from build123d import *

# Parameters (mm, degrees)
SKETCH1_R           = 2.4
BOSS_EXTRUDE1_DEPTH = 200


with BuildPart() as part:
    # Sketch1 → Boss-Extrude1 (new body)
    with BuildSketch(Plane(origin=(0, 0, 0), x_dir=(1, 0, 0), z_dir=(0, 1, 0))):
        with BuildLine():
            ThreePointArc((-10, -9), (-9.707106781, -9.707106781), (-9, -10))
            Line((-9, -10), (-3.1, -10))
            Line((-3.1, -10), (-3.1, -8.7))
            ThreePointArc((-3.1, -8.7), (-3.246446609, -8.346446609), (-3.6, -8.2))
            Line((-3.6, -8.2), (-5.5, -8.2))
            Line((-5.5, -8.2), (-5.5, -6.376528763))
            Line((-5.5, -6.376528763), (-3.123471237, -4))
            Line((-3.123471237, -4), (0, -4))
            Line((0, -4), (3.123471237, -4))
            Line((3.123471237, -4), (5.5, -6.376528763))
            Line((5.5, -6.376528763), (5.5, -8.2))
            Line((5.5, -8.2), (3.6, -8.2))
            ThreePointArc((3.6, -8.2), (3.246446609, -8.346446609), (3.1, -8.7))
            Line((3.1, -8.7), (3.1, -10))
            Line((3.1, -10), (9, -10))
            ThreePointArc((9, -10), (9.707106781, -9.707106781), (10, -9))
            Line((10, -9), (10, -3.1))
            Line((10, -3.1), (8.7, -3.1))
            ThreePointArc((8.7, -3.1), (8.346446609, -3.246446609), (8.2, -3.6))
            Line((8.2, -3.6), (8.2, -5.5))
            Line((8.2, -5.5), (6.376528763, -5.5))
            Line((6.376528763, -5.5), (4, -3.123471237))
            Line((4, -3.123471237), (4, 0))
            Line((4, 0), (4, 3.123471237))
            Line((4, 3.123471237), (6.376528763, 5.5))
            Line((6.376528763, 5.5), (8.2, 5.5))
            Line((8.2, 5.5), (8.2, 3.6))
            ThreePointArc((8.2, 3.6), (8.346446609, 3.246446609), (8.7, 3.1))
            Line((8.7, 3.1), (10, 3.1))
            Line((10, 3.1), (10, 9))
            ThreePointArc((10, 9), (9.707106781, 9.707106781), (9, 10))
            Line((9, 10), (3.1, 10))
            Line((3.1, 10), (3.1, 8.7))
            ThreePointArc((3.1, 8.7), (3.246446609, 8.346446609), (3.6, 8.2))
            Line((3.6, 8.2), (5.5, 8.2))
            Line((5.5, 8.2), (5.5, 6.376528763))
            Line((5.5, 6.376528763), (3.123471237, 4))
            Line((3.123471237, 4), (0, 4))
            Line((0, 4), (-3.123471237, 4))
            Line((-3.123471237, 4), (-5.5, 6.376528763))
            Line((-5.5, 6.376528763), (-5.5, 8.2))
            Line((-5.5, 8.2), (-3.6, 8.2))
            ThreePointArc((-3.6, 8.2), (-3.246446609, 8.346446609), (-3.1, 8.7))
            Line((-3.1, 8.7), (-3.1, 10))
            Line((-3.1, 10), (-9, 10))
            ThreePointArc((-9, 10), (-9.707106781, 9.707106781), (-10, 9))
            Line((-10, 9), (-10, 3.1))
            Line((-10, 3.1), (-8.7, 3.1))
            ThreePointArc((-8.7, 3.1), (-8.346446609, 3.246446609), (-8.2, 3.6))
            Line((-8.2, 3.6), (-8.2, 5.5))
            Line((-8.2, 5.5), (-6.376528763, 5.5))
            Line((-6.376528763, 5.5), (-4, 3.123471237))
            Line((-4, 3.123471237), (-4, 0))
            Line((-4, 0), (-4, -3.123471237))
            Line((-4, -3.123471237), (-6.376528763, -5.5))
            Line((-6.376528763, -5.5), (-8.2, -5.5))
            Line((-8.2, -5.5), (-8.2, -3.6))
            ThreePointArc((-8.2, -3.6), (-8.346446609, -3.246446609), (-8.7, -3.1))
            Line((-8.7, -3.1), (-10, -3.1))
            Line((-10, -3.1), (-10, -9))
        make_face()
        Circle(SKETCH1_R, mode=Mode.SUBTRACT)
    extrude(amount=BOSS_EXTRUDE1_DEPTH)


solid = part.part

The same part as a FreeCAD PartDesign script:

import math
import FreeCAD as App
import Part
import Sketcher
from FreeCAD import Vector

doc = App.newDocument("Part")
body = doc.addObject("PartDesign::Body", "Body")

sketch1 = doc.addObject("Sketcher::SketchObject", "Sketch")
body.addObject(sketch1)
sketch1.AttachmentSupport = (doc.XZ_Plane, [""])
sketch1.MapMode = "FlatFace"
sketch1.addGeometry(Part.ArcOfCircle(Part.Circle(Vector(-9, 9, 0), Vector(0, 0, 1), 1), math.radians(90), math.radians(180)), False)
sketch1.addGeometry(Part.LineSegment(Vector(-9, 10, 0), Vector(-3.1, 10, 0)), False)
sketch1.addGeometry(Part.LineSegment(Vector(-3.1, 10, 0), Vector(-3.1, 8.7, 0)), False)
sketch1.addGeometry(Part.ArcOfCircle(Part.Circle(Vector(-3.6, 8.7, 0), Vector(0, 0, 1), 0.5), math.radians(-90), math.radians(0)), False)
sketch1.addGeometry(Part.LineSegment(Vector(-3.6, 8.2, 0), Vector(-5.5, 8.2, 0)), False)
sketch1.addGeometry(Part.LineSegment(Vector(-5.5, 8.2, 0), Vector(-5.5, 6.38, 0)), False)
sketch1.addGeometry(Part.LineSegment(Vector(-5.5, 6.38, 0), Vector(-3.12, 4, 0)), False)
sketch1.addGeometry(Part.LineSegment(Vector(-3.12, 4, 0), Vector(3.12, 4, 0)), False)
sketch1.addGeometry(Part.LineSegment(Vector(3.12, 4, 0), Vector(5.5, 6.38, 0)), False)
sketch1.addGeometry(Part.LineSegment(Vector(5.5, 6.38, 0), Vector(5.5, 8.2, 0)), False)
sketch1.addGeometry(Part.LineSegment(Vector(5.5, 8.2, 0), Vector(3.6, 8.2, 0)), False)
sketch1.addGeometry(Part.ArcOfCircle(Part.Circle(Vector(3.6, 8.7, 0), Vector(0, 0, 1), 0.5), math.radians(180), math.radians(270)), False)
sketch1.addGeometry(Part.LineSegment(Vector(3.1, 8.7, 0), Vector(3.1, 10, 0)), False)
sketch1.addGeometry(Part.LineSegment(Vector(3.1, 10, 0), Vector(9, 10, 0)), False)
sketch1.addGeometry(Part.ArcOfCircle(Part.Circle(Vector(9, 9, 0), Vector(0, 0, 1), 1), math.radians(0), math.radians(90)), False)
sketch1.addGeometry(Part.LineSegment(Vector(10, 9, 0), Vector(10, 3.1, 0)), False)
sketch1.addGeometry(Part.LineSegment(Vector(10, 3.1, 0), Vector(8.7, 3.1, 0)), False)
sketch1.addGeometry(Part.ArcOfCircle(Part.Circle(Vector(8.7, 3.6, 0), Vector(0, 0, 1), 0.5), math.radians(180), math.radians(270)), False)
sketch1.addGeometry(Part.LineSegment(Vector(8.2, 3.6, 0), Vector(8.2, 5.5, 0)), False)
sketch1.addGeometry(Part.LineSegment(Vector(8.2, 5.5, 0), Vector(6.38, 5.5, 0)), False)
sketch1.addGeometry(Part.LineSegment(Vector(6.38, 5.5, 0), Vector(4, 3.12, 0)), False)
sketch1.addGeometry(Part.LineSegment(Vector(4, 3.12, 0), Vector(4, -3.12, 0)), False)
sketch1.addGeometry(Part.LineSegment(Vector(4, -3.12, 0), Vector(6.38, -5.5, 0)), False)
sketch1.addGeometry(Part.LineSegment(Vector(6.38, -5.5, 0), Vector(8.2, -5.5, 0)), False)
sketch1.addGeometry(Part.LineSegment(Vector(8.2, -5.5, 0), Vector(8.2, -3.6, 0)), False)
sketch1.addGeometry(Part.ArcOfCircle(Part.Circle(Vector(8.7, -3.6, 0), Vector(0, 0, 1), 0.5), math.radians(90), math.radians(180)), False)
sketch1.addGeometry(Part.LineSegment(Vector(8.7, -3.1, 0), Vector(10, -3.1, 0)), False)
sketch1.addGeometry(Part.LineSegment(Vector(10, -3.1, 0), Vector(10, -9, 0)), False)
sketch1.addGeometry(Part.ArcOfCircle(Part.Circle(Vector(9, -9, 0), Vector(0, 0, 1), 1), math.radians(-90), math.radians(0)), False)
sketch1.addGeometry(Part.LineSegment(Vector(9, -10, 0), Vector(3.1, -10, 0)), False)
sketch1.addGeometry(Part.LineSegment(Vector(3.1, -10, 0), Vector(3.1, -8.7, 0)), False)
sketch1.addGeometry(Part.ArcOfCircle(Part.Circle(Vector(3.6, -8.7, 0), Vector(0, 0, 1), 0.5), math.radians(90), math.radians(180)), False)
sketch1.addGeometry(Part.LineSegment(Vector(3.6, -8.2, 0), Vector(5.5, -8.2, 0)), False)
sketch1.addGeometry(Part.LineSegment(Vector(5.5, -8.2, 0), Vector(5.5, -6.38, 0)), False)
sketch1.addGeometry(Part.LineSegment(Vector(5.5, -6.38, 0), Vector(3.12, -4, 0)), False)
sketch1.addGeometry(Part.LineSegment(Vector(3.12, -4, 0), Vector(-3.12, -4, 0)), False)
sketch1.addGeometry(Part.LineSegment(Vector(-3.12, -4, 0), Vector(-5.5, -6.38, 0)), False)
sketch1.addGeometry(Part.LineSegment(Vector(-5.5, -6.38, 0), Vector(-5.5, -8.2, 0)), False)
sketch1.addGeometry(Part.LineSegment(Vector(-5.5, -8.2, 0), Vector(-3.6, -8.2, 0)), False)
sketch1.addGeometry(Part.ArcOfCircle(Part.Circle(Vector(-3.6, -8.7, 0), Vector(0, 0, 1), 0.5), math.radians(0), math.radians(90)), False)
sketch1.addGeometry(Part.LineSegment(Vector(-3.1, -8.7, 0), Vector(-3.1, -10, 0)), False)
sketch1.addGeometry(Part.LineSegment(Vector(-3.1, -10, 0), Vector(-9, -10, 0)), False)
sketch1.addGeometry(Part.ArcOfCircle(Part.Circle(Vector(-9, -9, 0), Vector(0, 0, 1), 1), math.radians(-180), math.radians(-90)), False)
sketch1.addGeometry(Part.LineSegment(Vector(-10, -9, 0), Vector(-10, -3.1, 0)), False)
sketch1.addGeometry(Part.LineSegment(Vector(-10, -3.1, 0), Vector(-8.7, -3.1, 0)), False)
sketch1.addGeometry(Part.ArcOfCircle(Part.Circle(Vector(-8.7, -3.6, 0), Vector(0, 0, 1), 0.5), math.radians(0), math.radians(90)), False)
sketch1.addGeometry(Part.LineSegment(Vector(-8.2, -3.6, 0), Vector(-8.2, -5.5, 0)), False)
sketch1.addGeometry(Part.LineSegment(Vector(-8.2, -5.5, 0), Vector(-6.38, -5.5, 0)), False)
sketch1.addGeometry(Part.LineSegment(Vector(-6.38, -5.5, 0), Vector(-4, -3.12, 0)), False)
sketch1.addGeometry(Part.LineSegment(Vector(-4, -3.12, 0), Vector(-4, 3.12, 0)), False)
sketch1.addGeometry(Part.LineSegment(Vector(-4, 3.12, 0), Vector(-6.38, 5.5, 0)), False)
sketch1.addGeometry(Part.LineSegment(Vector(-6.38, 5.5, 0), Vector(-8.2, 5.5, 0)), False)
sketch1.addGeometry(Part.LineSegment(Vector(-8.2, 5.5, 0), Vector(-8.2, 3.6, 0)), False)
sketch1.addGeometry(Part.ArcOfCircle(Part.Circle(Vector(-8.7, 3.6, 0), Vector(0, 0, 1), 0.5), math.radians(-90), math.radians(0)), False)
sketch1.addGeometry(Part.LineSegment(Vector(-8.7, 3.1, 0), Vector(-10, 3.1, 0)), False)
sketch1.addGeometry(Part.LineSegment(Vector(-10, 3.1, 0), Vector(-10, 9, 0)), False)
sketch1.addGeometry(Part.Circle(Vector(0, 0, 0), Vector(0, 0, 1), 2.4), False)
sketch1.addConstraint(Sketcher.Constraint("Tangent", 0, 1, 1, 1))
sketch1.addConstraint(Sketcher.Constraint("Coincident", 1, 2, 2, 1))
sketch1.addConstraint(Sketcher.Constraint("Tangent", 2, 2, 3, 2))
sketch1.addConstraint(Sketcher.Constraint("Tangent", 3, 1, 4, 1))
sketch1.addConstraint(Sketcher.Constraint("Coincident", 4, 2, 5, 1))
sketch1.addConstraint(Sketcher.Constraint("Coincident", 5, 2, 6, 1))
sketch1.addConstraint(Sketcher.Constraint("Coincident", 6, 2, 7, 1))
sketch1.addConstraint(Sketcher.Constraint("Coincident", 7, 2, 8, 1))
sketch1.addConstraint(Sketcher.Constraint("Coincident", 8, 2, 9, 1))
sketch1.addConstraint(Sketcher.Constraint("Coincident", 9, 2, 10, 1))
sketch1.addConstraint(Sketcher.Constraint("Tangent", 10, 2, 11, 2))
sketch1.addConstraint(Sketcher.Constraint("Tangent", 11, 1, 12, 1))
sketch1.addConstraint(Sketcher.Constraint("Coincident", 12, 2, 13, 1))
sketch1.addConstraint(Sketcher.Constraint("Tangent", 13, 2, 14, 2))
sketch1.addConstraint(Sketcher.Constraint("Tangent", 14, 1, 15, 1))
sketch1.addConstraint(Sketcher.Constraint("Coincident", 15, 2, 16, 1))
sketch1.addConstraint(Sketcher.Constraint("Tangent", 16, 2, 17, 2))
sketch1.addConstraint(Sketcher.Constraint("Tangent", 17, 1, 18, 1))
sketch1.addConstraint(Sketcher.Constraint("Coincident", 18, 2, 19, 1))
sketch1.addConstraint(Sketcher.Constraint("Coincident", 19, 2, 20, 1))
sketch1.addConstraint(Sketcher.Constraint("Coincident", 20, 2, 21, 1))
sketch1.addConstraint(Sketcher.Constraint("Coincident", 21, 2, 22, 1))
sketch1.addConstraint(Sketcher.Constraint("Coincident", 22, 2, 23, 1))
sketch1.addConstraint(Sketcher.Constraint("Coincident", 23, 2, 24, 1))
sketch1.addConstraint(Sketcher.Constraint("Tangent", 24, 2, 25, 2))
sketch1.addConstraint(Sketcher.Constraint("Tangent", 25, 1, 26, 1))
sketch1.addConstraint(Sketcher.Constraint("Coincident", 26, 2, 27, 1))
sketch1.addConstraint(Sketcher.Constraint("Tangent", 27, 2, 28, 2))
sketch1.addConstraint(Sketcher.Constraint("Tangent", 28, 1, 29, 1))
sketch1.addConstraint(Sketcher.Constraint("Coincident", 29, 2, 30, 1))
sketch1.addConstraint(Sketcher.Constraint("Tangent", 30, 2, 31, 2))
sketch1.addConstraint(Sketcher.Constraint("Tangent", 31, 1, 32, 1))
sketch1.addConstraint(Sketcher.Constraint("Coincident", 32, 2, 33, 1))
sketch1.addConstraint(Sketcher.Constraint("Coincident", 33, 2, 34, 1))
sketch1.addConstraint(Sketcher.Constraint("Coincident", 34, 2, 35, 1))
sketch1.addConstraint(Sketcher.Constraint("Coincident", 35, 2, 36, 1))
sketch1.addConstraint(Sketcher.Constraint("Coincident", 36, 2, 37, 1))
sketch1.addConstraint(Sketcher.Constraint("Coincident", 37, 2, 38, 1))
sketch1.addConstraint(Sketcher.Constraint("Tangent", 38, 2, 39, 2))
sketch1.addConstraint(Sketcher.Constraint("Tangent", 39, 1, 40, 1))
sketch1.addConstraint(Sketcher.Constraint("Coincident", 40, 2, 41, 1))
sketch1.addConstraint(Sketcher.Constraint("Tangent", 41, 2, 42, 2))
sketch1.addConstraint(Sketcher.Constraint("Tangent", 42, 1, 43, 1))
sketch1.addConstraint(Sketcher.Constraint("Coincident", 43, 2, 44, 1))
sketch1.addConstraint(Sketcher.Constraint("Tangent", 44, 2, 45, 2))
sketch1.addConstraint(Sketcher.Constraint("Tangent", 45, 1, 46, 1))
sketch1.addConstraint(Sketcher.Constraint("Coincident", 46, 2, 47, 1))
sketch1.addConstraint(Sketcher.Constraint("Coincident", 47, 2, 48, 1))
sketch1.addConstraint(Sketcher.Constraint("Coincident", 48, 2, 49, 1))
sketch1.addConstraint(Sketcher.Constraint("Coincident", 49, 2, 50, 1))
sketch1.addConstraint(Sketcher.Constraint("Coincident", 50, 2, 51, 1))
sketch1.addConstraint(Sketcher.Constraint("Coincident", 51, 2, 52, 1))
sketch1.addConstraint(Sketcher.Constraint("Tangent", 52, 2, 53, 2))
sketch1.addConstraint(Sketcher.Constraint("Tangent", 53, 1, 54, 1))
sketch1.addConstraint(Sketcher.Constraint("Coincident", 54, 2, 55, 1))
sketch1.addConstraint(Sketcher.Constraint("Tangent", 55, 2, 0, 2))
sketch1.addConstraint(Sketcher.Constraint("Horizontal", 1))
sketch1.addConstraint(Sketcher.Constraint("Vertical", 2))
sketch1.addConstraint(Sketcher.Constraint("Horizontal", 4))
sketch1.addConstraint(Sketcher.Constraint("Vertical", 5))
sketch1.addConstraint(Sketcher.Constraint("Horizontal", 7))
sketch1.addConstraint(Sketcher.Constraint("Vertical", 9))
sketch1.addConstraint(Sketcher.Constraint("Horizontal", 10))
sketch1.addConstraint(Sketcher.Constraint("Vertical", 12))
sketch1.addConstraint(Sketcher.Constraint("Horizontal", 13))
sketch1.addConstraint(Sketcher.Constraint("Vertical", 15))
sketch1.addConstraint(Sketcher.Constraint("Horizontal", 16))
sketch1.addConstraint(Sketcher.Constraint("Vertical", 18))
sketch1.addConstraint(Sketcher.Constraint("Horizontal", 19))
sketch1.addConstraint(Sketcher.Constraint("Vertical", 21))
sketch1.addConstraint(Sketcher.Constraint("Horizontal", 23))
sketch1.addConstraint(Sketcher.Constraint("Vertical", 24))
sketch1.addConstraint(Sketcher.Constraint("Horizontal", 26))
sketch1.addConstraint(Sketcher.Constraint("Vertical", 27))
sketch1.addConstraint(Sketcher.Constraint("Horizontal", 29))
sketch1.addConstraint(Sketcher.Constraint("Vertical", 30))
sketch1.addConstraint(Sketcher.Constraint("Horizontal", 32))
sketch1.addConstraint(Sketcher.Constraint("Vertical", 33))
sketch1.addConstraint(Sketcher.Constraint("Horizontal", 35))
sketch1.addConstraint(Sketcher.Constraint("Vertical", 37))
sketch1.addConstraint(Sketcher.Constraint("Horizontal", 38))
sketch1.addConstraint(Sketcher.Constraint("Vertical", 40))
sketch1.addConstraint(Sketcher.Constraint("Horizontal", 41))
sketch1.addConstraint(Sketcher.Constraint("Vertical", 43))
sketch1.addConstraint(Sketcher.Constraint("Horizontal", 44))
sketch1.addConstraint(Sketcher.Constraint("Vertical", 46))
sketch1.addConstraint(Sketcher.Constraint("Horizontal", 47))
sketch1.addConstraint(Sketcher.Constraint("Vertical", 49))
sketch1.addConstraint(Sketcher.Constraint("Horizontal", 51))
sketch1.addConstraint(Sketcher.Constraint("Vertical", 52))
sketch1.addConstraint(Sketcher.Constraint("Horizontal", 54))
sketch1.addConstraint(Sketcher.Constraint("Vertical", 55))
sketch1.addConstraint(Sketcher.Constraint("Coincident", 56, 3, -1, 1))
sketch1.addConstraint(Sketcher.Constraint("Equal", 3, 11))
sketch1.addConstraint(Sketcher.Constraint("Equal", 0, 14))
sketch1.addConstraint(Sketcher.Constraint("Equal", 11, 17))
sketch1.addConstraint(Sketcher.Constraint("Equal", 17, 25))
sketch1.addConstraint(Sketcher.Constraint("Equal", 14, 28))
sketch1.addConstraint(Sketcher.Constraint("Equal", 25, 31))
sketch1.addConstraint(Sketcher.Constraint("Equal", 31, 39))
sketch1.addConstraint(Sketcher.Constraint("Equal", 28, 42))
sketch1.addConstraint(Sketcher.Constraint("Equal", 39, 45))
sketch1.addConstraint(Sketcher.Constraint("Equal", 45, 53))
sketch1.addConstraint(Sketcher.Constraint("Symmetric", 0, 3, 28, 3, -1, 1))
sketch1.addConstraint(Sketcher.Constraint("Symmetric", 3, 3, 31, 3, -1, 1))
sketch1.addConstraint(Sketcher.Constraint("Symmetric", 11, 3, 39, 3, -1, 1))
sketch1.addConstraint(Sketcher.Constraint("Symmetric", 14, 3, 42, 3, -1, 1))
sketch1.addConstraint(Sketcher.Constraint("Symmetric", 17, 3, 45, 3, -1, 1))
sketch1.addConstraint(Sketcher.Constraint("Symmetric", 25, 3, 53, 3, -1, 1))
sketch1.addConstraint(Sketcher.Constraint("Symmetric", 5, 2, 33, 2, -1, 1))
sketch1.addConstraint(Sketcher.Constraint("Symmetric", 6, 2, 34, 2, -1, 1))
sketch1.addConstraint(Sketcher.Constraint("Symmetric", 8, 2, 36, 2, -1, 1))
sketch1.addConstraint(Sketcher.Constraint("Symmetric", 19, 2, 47, 2, -1, 1))
sketch1.addConstraint(Sketcher.Constraint("Symmetric", 20, 2, 48, 2, -1, 1))
sketch1.addConstraint(Sketcher.Constraint("Symmetric", 22, 2, 50, 2, -1, 1))
sketch1.addConstraint(Sketcher.Constraint("Symmetric", 3, 3, 11, 3, -2))
sketch1.addConstraint(Sketcher.Constraint("Symmetric", 0, 3, 14, 3, -2))
sketch1.addConstraint(Sketcher.Constraint("Symmetric", 25, 3, 45, 3, -2))
sketch1.addConstraint(Sketcher.Constraint("Symmetric", 5, 2, 8, 2, -2))
sketch1.addConstraint(Sketcher.Constraint("Symmetric", 22, 2, 47, 2, -2))
sketch1.addConstraint(Sketcher.Constraint("Perpendicular", 6, 8))
sketch1.addConstraint(Sketcher.Constraint("Parallel", 8, 20))
sketch1.addConstraint(Sketcher.Constraint("Perpendicular", 20, 22))
sketch1.addConstraint(Sketcher.Constraint("Perpendicular", 34, 36))
sketch1.addConstraint(Sketcher.Constraint("Perpendicular", 48, 50))
sketch1.addConstraint(Sketcher.Constraint("Horizontal", 21, 2, 48, 2))
sketch1.addConstraint(Sketcher.Constraint("Equal", 54, 2))
sketch1.addConstraint(Sketcher.Constraint("Equal", 51, 5))
sketch1.addConstraint(Sketcher.Constraint("Equal", 41, 15))
sketch1.addConstraint(Sketcher.Constraint("Equal", 38, 18))
sketch1.addConstraint(Sketcher.Constraint("Equal", 35, 21))
sketch1.addConstraint(Sketcher.Constraint("Equal", 8, 20))
sketch1.addConstraint(Sketcher.Constraint("Radius", 0, 1.0))
sketch1.addConstraint(Sketcher.Constraint("Diameter", 56, 4.8))
sketch1.addConstraint(Sketcher.Constraint("Radius", 3, 0.5))
sketch1.addConstraint(Sketcher.Constraint("DistanceX", 1, 1, 1, 2, 5.9))
sketch1.addConstraint(Sketcher.Constraint("DistanceX", 4, 2, 4, 1, 1.9))
sketch1.addConstraint(Sketcher.Constraint("DistanceX", 16, 2, 16, 1, 1.3))
sketch1.addConstraint(Sketcher.Constraint("DistanceX", 0, 3, -1, 1, 9.0))
sketch1.addConstraint(Sketcher.Constraint("DistanceY", -1, 1, 6, 2, 4.0))
sketch1.addConstraint(Sketcher.Constraint("DistanceX", 19, 2, 19, 1, 1.823471))
pad1 = doc.addObject("PartDesign::Pad", "Pad")
body.addObject(pad1)
pad1.Profile = sketch1
pad1.Length = 200
pad1.Reversed = True

doc.recompute()
